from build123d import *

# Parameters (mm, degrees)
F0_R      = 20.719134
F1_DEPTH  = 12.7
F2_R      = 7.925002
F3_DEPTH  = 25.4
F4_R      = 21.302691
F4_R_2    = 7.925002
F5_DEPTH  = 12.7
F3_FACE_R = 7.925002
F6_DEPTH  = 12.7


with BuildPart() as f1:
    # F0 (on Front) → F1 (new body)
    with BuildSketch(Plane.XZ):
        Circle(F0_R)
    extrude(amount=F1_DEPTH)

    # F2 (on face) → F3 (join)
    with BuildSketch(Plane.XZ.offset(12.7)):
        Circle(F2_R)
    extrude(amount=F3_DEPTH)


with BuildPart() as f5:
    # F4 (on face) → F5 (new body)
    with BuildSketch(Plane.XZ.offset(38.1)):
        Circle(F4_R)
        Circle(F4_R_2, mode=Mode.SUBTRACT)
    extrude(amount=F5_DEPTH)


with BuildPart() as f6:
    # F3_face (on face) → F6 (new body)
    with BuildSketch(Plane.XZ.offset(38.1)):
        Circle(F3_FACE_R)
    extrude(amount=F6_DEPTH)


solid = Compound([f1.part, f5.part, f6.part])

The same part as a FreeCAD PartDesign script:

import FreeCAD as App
import Part
import Sketcher

doc = App.newDocument("Part")
params = doc.addObject("Spreadsheet::Sheet", "Params")
for row, (alias, value) in enumerate([
    ("pad1_length", "0.5 in"),
    ("pad2_length", "1 in"),
    ("pad3_length", "0.5 in"),
    ("pad4_length", "0.5 in"),
], start=1):
    params.set(f"A{row}", alias)
    params.set(f"B{row}", "=" + value)
    params.setAlias(f"B{row}", alias)

body = doc.addObject("PartDesign::Body", "Body")

# Sketch on XZ plane
sketch1 = body.newObject("Sketcher::SketchObject", "Sketch")
sketch1.AttachmentSupport = (doc.getObject("XZ_Plane"), [""])
sketch1.MapMode = "FlatFace"
sketch1.addGeometry(Part.Circle(App.Vector(0, 0, 0), App.Vector(0, 0, 1), 21), False)
sketch1.addConstraint([
    Sketcher.Constraint("Coincident", 0, 3, -1, 1),
    Sketcher.Constraint("Diameter", 0, 41.438268),
])
pad1 = body.newObject("PartDesign::Pad", "Pad")
pad1.Profile = sketch1
pad1.setExpression("Length", "Params.pad1_length")

# Sketch on XZ plane
sketch2 = body.newObject("Sketcher::SketchObject", "Sketch001")
sketch2.AttachmentSupport = (doc.getObject("XZ_Plane"), [""])
sketch2.MapMode = "FlatFace"
sketch2.AttachmentOffset = App.Placement(App.Vector(0, 0, 0.5 * 25.4), App.Rotation())
sketch2.addGeometry(Part.Circle(App.Vector(0, 0, 0), App.Vector(0, 0, 1), 8), False)
sketch2.addConstraint([
    Sketcher.Constraint("Coincident", 0, 3, -1, 1),
    Sketcher.Constraint("Diameter", 0, 15.850004),
])
pad2 = body.newObject("PartDesign::Pad", "Pad001")
pad2.Profile = sketch2
pad2.setExpression("Length", "Params.pad2_length")
body2 = doc.addObject("PartDesign::Body", "Body001")

# Sketch on XZ plane
sketch3 = body2.newObject("Sketcher::SketchObject", "Sketch002")
sketch3.AttachmentSupport = (doc.getObject("XZ_Plane001"), [""])
sketch3.MapMode = "FlatFace"
sketch3.AttachmentOffset = App.Placement(App.Vector(0, 0, 1.5 * 25.4), App.Rotation())
sketch3.addGeometry([
    Part.Circle(App.Vector(0, 0, 0), App.Vector(0, 0, 1), 21),
    Part.Circle(App.Vector(0, 0, 0), App.Vector(0, 0, 1), 8),
], False)
sketch3.addConstraint([
    Sketcher.Constraint("Coincident", 0, 3, -1, 1),
    Sketcher.Constraint("Coincident", 1, 3, -1, 1),
    Sketcher.Constraint("Diameter", 0, 42.605382),
    Sketcher.Constraint("Diameter", 1, 15.850004),
])
pad3 = body2.newObject("PartDesign::Pad", "Pad002")
pad3.Profile = sketch3
pad3.setExpression("Length", "Params.pad3_length")
body3 = doc.addObject("PartDesign::Body", "Body002")

# Sketch on XZ plane
sketch4 = body3.newObject("Sketcher::SketchObject", "Sketch003")
sketch4.AttachmentSupport = (doc.getObject("XZ_Plane002"), [""])
sketch4.MapMode = "FlatFace"
sketch4.AttachmentOffset = App.Placement(App.Vector(0, 0, 1.5 * 25.4), App.Rotation())
sketch4.addGeometry(Part.Circle(App.Vector(0, 0, 0), App.Vector(0, 0, 1), 8), False)
sketch4.addConstraint([
    Sketcher.Constraint("Coincident", 0, 3, -1, 1),
    Sketcher.Constraint("Diameter", 0, 15.850004),
])
pad4 = body3.newObject("PartDesign::Pad", "Pad003")
pad4.Profile = sketch4
pad4.setExpression("Length", "Params.pad4_length")

doc.recompute()
